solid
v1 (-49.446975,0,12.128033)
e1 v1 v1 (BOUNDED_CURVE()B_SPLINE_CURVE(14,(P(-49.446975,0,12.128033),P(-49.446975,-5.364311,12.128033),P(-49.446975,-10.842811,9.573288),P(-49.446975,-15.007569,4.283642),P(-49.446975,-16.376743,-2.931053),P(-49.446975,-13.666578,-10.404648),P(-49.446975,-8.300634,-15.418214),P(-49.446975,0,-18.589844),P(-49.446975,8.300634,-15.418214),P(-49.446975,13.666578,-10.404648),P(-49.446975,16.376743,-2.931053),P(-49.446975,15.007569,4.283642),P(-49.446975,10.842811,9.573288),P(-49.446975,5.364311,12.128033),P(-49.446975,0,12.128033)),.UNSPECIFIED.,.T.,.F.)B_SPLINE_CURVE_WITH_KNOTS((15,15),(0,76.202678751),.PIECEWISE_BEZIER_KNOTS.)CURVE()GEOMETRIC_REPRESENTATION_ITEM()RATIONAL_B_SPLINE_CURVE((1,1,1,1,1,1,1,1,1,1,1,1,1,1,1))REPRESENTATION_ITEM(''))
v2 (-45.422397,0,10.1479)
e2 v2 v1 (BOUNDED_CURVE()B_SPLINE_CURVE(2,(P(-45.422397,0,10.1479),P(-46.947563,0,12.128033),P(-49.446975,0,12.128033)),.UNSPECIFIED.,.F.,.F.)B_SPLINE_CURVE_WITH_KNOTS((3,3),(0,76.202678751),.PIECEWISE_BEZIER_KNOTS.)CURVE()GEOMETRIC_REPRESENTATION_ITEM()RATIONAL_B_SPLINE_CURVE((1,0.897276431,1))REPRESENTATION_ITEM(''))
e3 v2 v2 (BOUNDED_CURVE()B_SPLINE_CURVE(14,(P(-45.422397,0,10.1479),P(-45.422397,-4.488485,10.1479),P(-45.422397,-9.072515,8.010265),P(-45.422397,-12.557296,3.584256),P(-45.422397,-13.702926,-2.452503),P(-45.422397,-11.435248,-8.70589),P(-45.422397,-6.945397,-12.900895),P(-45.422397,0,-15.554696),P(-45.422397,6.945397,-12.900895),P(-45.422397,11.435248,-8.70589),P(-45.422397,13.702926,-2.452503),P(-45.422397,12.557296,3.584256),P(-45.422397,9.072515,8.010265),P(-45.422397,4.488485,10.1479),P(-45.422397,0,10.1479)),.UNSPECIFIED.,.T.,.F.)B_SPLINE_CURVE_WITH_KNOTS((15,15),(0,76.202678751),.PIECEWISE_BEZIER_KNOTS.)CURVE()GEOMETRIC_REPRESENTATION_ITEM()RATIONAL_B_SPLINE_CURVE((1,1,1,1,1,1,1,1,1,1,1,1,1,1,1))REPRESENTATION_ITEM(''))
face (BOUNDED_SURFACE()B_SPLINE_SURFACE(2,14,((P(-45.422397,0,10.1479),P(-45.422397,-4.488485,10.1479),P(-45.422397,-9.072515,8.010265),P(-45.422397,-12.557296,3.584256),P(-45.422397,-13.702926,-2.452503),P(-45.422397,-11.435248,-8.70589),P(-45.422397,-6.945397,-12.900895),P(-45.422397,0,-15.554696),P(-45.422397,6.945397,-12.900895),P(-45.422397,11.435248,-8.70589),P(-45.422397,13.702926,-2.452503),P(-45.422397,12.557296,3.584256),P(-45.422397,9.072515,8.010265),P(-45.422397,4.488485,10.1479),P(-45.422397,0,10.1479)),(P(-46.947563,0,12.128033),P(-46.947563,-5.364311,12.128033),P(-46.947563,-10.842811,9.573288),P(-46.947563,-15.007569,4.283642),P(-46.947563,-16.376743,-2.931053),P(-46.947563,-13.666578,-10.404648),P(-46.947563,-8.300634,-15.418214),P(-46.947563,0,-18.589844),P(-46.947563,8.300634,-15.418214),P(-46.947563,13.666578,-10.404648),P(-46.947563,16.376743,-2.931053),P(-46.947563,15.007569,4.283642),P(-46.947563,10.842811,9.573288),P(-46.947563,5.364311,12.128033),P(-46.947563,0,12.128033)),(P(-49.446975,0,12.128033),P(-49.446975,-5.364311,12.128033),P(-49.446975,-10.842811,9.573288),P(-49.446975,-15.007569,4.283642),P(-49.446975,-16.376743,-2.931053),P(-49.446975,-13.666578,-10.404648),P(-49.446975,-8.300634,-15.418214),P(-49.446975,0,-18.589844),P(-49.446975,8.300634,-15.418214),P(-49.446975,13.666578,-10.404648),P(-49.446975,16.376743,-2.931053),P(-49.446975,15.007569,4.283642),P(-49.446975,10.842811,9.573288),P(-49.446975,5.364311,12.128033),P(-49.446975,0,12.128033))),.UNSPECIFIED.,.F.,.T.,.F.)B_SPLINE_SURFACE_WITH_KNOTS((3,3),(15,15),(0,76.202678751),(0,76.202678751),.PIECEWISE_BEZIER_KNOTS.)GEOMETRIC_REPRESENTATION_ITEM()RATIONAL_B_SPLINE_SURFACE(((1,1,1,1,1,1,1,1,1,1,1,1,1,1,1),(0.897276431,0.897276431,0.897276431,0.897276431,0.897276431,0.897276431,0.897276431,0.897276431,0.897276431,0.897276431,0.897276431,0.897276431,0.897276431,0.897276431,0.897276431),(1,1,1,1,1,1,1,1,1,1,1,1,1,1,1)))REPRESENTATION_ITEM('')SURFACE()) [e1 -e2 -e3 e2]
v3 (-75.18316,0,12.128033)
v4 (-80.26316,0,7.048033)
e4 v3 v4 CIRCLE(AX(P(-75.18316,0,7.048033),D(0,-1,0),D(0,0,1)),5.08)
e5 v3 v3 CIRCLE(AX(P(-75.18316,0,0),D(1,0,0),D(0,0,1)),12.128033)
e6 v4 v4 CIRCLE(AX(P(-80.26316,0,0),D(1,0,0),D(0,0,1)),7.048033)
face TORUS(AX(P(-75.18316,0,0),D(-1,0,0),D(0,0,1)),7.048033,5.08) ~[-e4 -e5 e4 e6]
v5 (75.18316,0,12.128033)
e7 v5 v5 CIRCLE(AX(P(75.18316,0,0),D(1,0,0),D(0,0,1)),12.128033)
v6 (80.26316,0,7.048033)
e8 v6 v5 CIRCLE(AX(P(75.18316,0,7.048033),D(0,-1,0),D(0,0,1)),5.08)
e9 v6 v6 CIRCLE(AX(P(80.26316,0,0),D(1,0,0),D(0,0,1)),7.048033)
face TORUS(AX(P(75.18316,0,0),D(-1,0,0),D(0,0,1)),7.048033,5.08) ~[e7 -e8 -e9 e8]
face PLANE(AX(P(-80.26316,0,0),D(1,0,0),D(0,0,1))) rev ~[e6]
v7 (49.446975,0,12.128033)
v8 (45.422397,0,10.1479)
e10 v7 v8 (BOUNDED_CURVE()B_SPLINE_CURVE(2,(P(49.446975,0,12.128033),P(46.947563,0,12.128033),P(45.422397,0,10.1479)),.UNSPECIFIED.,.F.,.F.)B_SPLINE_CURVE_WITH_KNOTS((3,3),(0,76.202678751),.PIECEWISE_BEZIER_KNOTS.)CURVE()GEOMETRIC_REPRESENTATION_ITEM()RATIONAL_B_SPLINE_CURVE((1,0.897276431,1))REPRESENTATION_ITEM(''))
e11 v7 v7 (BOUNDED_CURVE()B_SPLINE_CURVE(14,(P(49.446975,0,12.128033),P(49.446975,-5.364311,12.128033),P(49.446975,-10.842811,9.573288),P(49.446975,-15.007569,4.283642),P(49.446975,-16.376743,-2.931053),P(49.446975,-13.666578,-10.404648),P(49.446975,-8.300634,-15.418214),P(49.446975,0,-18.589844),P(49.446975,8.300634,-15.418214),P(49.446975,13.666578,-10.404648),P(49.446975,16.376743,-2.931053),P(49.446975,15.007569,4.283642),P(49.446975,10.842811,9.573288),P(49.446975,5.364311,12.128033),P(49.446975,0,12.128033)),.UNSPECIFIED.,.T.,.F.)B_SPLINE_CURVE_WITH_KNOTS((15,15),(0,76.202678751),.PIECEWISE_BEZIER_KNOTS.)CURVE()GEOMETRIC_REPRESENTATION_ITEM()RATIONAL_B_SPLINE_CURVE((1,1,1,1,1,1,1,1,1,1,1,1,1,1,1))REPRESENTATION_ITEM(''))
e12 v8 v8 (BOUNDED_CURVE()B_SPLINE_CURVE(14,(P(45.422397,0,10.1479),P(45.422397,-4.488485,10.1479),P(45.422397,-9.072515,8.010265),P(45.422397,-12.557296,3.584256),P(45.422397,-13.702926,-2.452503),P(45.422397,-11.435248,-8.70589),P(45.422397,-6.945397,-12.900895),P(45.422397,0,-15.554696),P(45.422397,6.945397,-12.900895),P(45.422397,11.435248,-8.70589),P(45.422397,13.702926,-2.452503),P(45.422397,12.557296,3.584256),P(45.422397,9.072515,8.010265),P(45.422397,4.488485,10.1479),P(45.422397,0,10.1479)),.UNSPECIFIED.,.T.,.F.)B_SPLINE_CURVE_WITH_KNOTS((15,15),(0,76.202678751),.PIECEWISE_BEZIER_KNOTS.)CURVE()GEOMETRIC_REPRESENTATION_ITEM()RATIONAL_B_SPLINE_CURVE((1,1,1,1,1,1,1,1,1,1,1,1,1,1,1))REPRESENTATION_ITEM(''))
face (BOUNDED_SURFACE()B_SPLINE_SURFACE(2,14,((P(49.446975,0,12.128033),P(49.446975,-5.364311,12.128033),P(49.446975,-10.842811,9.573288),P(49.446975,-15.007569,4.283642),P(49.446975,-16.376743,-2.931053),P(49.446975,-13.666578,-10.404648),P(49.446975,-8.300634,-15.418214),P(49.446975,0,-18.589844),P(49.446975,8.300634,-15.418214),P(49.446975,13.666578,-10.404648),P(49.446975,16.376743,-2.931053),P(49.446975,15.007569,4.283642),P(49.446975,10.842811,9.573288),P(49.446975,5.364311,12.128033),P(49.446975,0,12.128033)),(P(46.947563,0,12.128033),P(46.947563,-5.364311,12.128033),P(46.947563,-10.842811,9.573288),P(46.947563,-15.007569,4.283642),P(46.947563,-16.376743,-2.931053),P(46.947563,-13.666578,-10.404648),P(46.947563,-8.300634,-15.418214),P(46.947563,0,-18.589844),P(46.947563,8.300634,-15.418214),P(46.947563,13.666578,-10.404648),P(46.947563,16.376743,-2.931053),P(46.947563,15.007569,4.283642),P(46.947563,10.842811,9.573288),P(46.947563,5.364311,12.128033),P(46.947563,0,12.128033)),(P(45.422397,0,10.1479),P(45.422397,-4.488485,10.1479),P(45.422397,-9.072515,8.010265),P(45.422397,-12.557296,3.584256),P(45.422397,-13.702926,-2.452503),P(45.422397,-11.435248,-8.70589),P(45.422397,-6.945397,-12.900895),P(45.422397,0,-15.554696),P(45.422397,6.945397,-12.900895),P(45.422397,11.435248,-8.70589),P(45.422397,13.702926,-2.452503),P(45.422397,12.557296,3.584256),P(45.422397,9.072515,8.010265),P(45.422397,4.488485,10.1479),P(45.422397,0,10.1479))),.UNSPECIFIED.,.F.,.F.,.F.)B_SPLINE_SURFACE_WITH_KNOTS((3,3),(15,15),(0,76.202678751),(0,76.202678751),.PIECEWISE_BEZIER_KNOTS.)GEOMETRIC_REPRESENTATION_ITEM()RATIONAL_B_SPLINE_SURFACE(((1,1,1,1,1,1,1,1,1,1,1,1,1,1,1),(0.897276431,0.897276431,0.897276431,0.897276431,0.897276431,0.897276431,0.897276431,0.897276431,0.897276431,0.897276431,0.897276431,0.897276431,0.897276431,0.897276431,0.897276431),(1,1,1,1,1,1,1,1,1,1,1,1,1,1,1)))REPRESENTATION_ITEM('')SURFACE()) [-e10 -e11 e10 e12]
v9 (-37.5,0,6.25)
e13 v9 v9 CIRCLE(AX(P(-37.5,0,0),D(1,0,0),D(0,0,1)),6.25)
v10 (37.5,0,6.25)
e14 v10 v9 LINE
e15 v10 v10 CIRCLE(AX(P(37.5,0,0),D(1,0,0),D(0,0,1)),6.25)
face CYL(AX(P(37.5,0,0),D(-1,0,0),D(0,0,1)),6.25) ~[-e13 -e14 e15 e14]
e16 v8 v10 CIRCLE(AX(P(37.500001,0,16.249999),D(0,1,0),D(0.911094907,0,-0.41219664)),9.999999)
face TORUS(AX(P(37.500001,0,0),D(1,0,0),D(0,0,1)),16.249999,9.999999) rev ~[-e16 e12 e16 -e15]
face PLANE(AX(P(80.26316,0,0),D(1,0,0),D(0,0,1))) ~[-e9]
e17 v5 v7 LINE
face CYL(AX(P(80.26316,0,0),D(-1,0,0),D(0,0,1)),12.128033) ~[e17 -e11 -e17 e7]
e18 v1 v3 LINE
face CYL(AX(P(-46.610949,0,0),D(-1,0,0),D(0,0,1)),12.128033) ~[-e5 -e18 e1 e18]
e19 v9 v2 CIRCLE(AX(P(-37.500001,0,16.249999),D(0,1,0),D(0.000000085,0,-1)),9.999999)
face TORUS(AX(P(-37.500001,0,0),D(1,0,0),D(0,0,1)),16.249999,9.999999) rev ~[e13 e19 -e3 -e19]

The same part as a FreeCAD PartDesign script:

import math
import FreeCAD as App
import Part
import Sketcher
from FreeCAD import Vector


def edges_at(feature, points):
    """Names of the edges that pass closest to the given points."""
    edges = feature.Shape.Edges
    near = lambda p: min(range(len(edges)), key=lambda i: edges[i].distToShape(Part.Vertex(*p))[0])
    return sorted({f"Edge{near(p) + 1}" for p in points})

doc = App.newDocument("Part")
params = doc.addObject("Spreadsheet::Sheet", "Params")
for row, (alias, value) in enumerate([
    ("sketch1_radius", "9.999999 mm"),
    ("sketch1_width", "75 mm"),
    ("revolution_angle", "360 deg"),
    ("fillet_radius", "5.08 mm"),
], start=1):
    params.set(f"A{row}", alias)
    params.set(f"B{row}", "=" + value)
    params.setAlias(f"B{row}", alias)

body = doc.addObject("PartDesign::Body", "Body")

# Sketch on XZ plane
sketch1 = body.newObject("Sketcher::SketchObject", "Sketch")
sketch1.AttachmentSupport = (doc.getObject("XZ_Plane"), [""])
sketch1.MapMode = "FlatFace"
sketch1.addGeometry(Part.LineSegment(Vector(38, 6, 0), Vector(-38, 6, 0)), False)
sketch1.addGeometry(Part.ArcOfCircle(Part.Circle(Vector(-38, 16, 0), Vector(0, 0, 1), 10), math.radians(-156), math.radians(-90)), False)
sketch1.addGeometry(Part.LineSegment(Vector(-47, 12, 0), Vector(-80, 12, 0)), False)
sketch1.addGeometry(Part.LineSegment(Vector(-80, 12, 0), Vector(-80, 0, 0)), False)
sketch1.addGeometry(Part.LineSegment(Vector(-80, 0, 0), Vector(80, 0, 0)), False)
sketch1.addGeometry(Part.LineSegment(Vector(80, 0, 0), Vector(80, 12, 0)), False)
sketch1.addGeometry(Part.LineSegment(Vector(80, 12, 0), Vector(47, 12, 0)), False)
sketch1.addGeometry(Part.ArcOfCircle(Part.Circle(Vector(38, 16, 0), Vector(0, 0, 1), 10), math.radians(-90), math.radians(-24)), False)
sketch1.addConstraint(Sketcher.Constraint("Tangent", 0, 2, 1, 2))
sketch1.addConstraint(Sketcher.Constraint("Coincident", 1, 1, 2, 1))
sketch1.addConstraint(Sketcher.Constraint("Coincident", 2, 2, 3, 1))
sketch1.addConstraint(Sketcher.Constraint("Coincident", 3, 2, 4, 1))
sketch1.addConstraint(Sketcher.Constraint("Coincident", 4, 2, 5, 1))
sketch1.addConstraint(Sketcher.Constraint("Coincident", 5, 2, 6, 1))
sketch1.addConstraint(Sketcher.Constraint("Coincident", 6, 2, 7, 2))
sketch1.addConstraint(Sketcher.Constraint("Tangent", 7, 1, 0, 1))
sketch1.addConstraint(Sketcher.Constraint("Horizontal", 0))
sketch1.addConstraint(Sketcher.Constraint("Horizontal", 2))
sketch1.addConstraint(Sketcher.Constraint("Vertical", 3))
sketch1.addConstraint(Sketcher.Constraint("Horizontal", 4))
sketch1.addConstraint(Sketcher.Constraint("Vertical", 5))
sketch1.addConstraint(Sketcher.Constraint("Horizontal", 6))
sketch1.addConstraint(Sketcher.Constraint("Equal", 1, 7))
sketch1.addConstraint(Sketcher.Constraint("Symmetric", 3, 2, 4, 2, -1, 1))
sketch1.addConstraint(Sketcher.Constraint("Symmetric", 1, 1, 6, 2, -2))
sketch1.addConstraint(Sketcher.Constraint("Radius", 1, 9.999999))
sketch1.addConstraint(Sketcher.Constraint("DistanceX", 0, 2, 0, 1, 75.0))
sketch1.addConstraint(Sketcher.Constraint("DistanceY", -1, 1, 1, 3, 16.249999))
sketch1.addConstraint(Sketcher.Constraint("DistanceX", 2, 2, 2, 1, 33.652211))
sketch1.addConstraint(Sketcher.Constraint("DistanceX", 4, 1, 4, 2, 160.52632))
sketch1.setExpression("Constraints[17]", "Params.sketch1_radius")
sketch1.setExpression("Constraints[18]", "Params.sketch1_width")
revolution = body.newObject("PartDesign::Revolution", "Revolution")
revolution.Profile = sketch1
revolution.ReferenceAxis = (sketch1, ["H_Axis"])
revolution.setExpression("Angle", "Params.revolution_angle")
doc.recompute()

fillet = body.newObject("PartDesign::Fillet", "Fillet")
fillet.Base = (revolution, edges_at(revolution, [
    (-37.5, 0, -6.25),
    (-46.611, 0, -12.128),
    (-42.921, 0, 7.847),
    (46.611, 0, -12.128),
    (37.5, 0, -6.25),
    (-80.263, 0, -12.128),
    (80.263, 0, -12.128),
]))
fillet.setExpression("Radius", "Params.fillet_radius")

doc.recompute()
